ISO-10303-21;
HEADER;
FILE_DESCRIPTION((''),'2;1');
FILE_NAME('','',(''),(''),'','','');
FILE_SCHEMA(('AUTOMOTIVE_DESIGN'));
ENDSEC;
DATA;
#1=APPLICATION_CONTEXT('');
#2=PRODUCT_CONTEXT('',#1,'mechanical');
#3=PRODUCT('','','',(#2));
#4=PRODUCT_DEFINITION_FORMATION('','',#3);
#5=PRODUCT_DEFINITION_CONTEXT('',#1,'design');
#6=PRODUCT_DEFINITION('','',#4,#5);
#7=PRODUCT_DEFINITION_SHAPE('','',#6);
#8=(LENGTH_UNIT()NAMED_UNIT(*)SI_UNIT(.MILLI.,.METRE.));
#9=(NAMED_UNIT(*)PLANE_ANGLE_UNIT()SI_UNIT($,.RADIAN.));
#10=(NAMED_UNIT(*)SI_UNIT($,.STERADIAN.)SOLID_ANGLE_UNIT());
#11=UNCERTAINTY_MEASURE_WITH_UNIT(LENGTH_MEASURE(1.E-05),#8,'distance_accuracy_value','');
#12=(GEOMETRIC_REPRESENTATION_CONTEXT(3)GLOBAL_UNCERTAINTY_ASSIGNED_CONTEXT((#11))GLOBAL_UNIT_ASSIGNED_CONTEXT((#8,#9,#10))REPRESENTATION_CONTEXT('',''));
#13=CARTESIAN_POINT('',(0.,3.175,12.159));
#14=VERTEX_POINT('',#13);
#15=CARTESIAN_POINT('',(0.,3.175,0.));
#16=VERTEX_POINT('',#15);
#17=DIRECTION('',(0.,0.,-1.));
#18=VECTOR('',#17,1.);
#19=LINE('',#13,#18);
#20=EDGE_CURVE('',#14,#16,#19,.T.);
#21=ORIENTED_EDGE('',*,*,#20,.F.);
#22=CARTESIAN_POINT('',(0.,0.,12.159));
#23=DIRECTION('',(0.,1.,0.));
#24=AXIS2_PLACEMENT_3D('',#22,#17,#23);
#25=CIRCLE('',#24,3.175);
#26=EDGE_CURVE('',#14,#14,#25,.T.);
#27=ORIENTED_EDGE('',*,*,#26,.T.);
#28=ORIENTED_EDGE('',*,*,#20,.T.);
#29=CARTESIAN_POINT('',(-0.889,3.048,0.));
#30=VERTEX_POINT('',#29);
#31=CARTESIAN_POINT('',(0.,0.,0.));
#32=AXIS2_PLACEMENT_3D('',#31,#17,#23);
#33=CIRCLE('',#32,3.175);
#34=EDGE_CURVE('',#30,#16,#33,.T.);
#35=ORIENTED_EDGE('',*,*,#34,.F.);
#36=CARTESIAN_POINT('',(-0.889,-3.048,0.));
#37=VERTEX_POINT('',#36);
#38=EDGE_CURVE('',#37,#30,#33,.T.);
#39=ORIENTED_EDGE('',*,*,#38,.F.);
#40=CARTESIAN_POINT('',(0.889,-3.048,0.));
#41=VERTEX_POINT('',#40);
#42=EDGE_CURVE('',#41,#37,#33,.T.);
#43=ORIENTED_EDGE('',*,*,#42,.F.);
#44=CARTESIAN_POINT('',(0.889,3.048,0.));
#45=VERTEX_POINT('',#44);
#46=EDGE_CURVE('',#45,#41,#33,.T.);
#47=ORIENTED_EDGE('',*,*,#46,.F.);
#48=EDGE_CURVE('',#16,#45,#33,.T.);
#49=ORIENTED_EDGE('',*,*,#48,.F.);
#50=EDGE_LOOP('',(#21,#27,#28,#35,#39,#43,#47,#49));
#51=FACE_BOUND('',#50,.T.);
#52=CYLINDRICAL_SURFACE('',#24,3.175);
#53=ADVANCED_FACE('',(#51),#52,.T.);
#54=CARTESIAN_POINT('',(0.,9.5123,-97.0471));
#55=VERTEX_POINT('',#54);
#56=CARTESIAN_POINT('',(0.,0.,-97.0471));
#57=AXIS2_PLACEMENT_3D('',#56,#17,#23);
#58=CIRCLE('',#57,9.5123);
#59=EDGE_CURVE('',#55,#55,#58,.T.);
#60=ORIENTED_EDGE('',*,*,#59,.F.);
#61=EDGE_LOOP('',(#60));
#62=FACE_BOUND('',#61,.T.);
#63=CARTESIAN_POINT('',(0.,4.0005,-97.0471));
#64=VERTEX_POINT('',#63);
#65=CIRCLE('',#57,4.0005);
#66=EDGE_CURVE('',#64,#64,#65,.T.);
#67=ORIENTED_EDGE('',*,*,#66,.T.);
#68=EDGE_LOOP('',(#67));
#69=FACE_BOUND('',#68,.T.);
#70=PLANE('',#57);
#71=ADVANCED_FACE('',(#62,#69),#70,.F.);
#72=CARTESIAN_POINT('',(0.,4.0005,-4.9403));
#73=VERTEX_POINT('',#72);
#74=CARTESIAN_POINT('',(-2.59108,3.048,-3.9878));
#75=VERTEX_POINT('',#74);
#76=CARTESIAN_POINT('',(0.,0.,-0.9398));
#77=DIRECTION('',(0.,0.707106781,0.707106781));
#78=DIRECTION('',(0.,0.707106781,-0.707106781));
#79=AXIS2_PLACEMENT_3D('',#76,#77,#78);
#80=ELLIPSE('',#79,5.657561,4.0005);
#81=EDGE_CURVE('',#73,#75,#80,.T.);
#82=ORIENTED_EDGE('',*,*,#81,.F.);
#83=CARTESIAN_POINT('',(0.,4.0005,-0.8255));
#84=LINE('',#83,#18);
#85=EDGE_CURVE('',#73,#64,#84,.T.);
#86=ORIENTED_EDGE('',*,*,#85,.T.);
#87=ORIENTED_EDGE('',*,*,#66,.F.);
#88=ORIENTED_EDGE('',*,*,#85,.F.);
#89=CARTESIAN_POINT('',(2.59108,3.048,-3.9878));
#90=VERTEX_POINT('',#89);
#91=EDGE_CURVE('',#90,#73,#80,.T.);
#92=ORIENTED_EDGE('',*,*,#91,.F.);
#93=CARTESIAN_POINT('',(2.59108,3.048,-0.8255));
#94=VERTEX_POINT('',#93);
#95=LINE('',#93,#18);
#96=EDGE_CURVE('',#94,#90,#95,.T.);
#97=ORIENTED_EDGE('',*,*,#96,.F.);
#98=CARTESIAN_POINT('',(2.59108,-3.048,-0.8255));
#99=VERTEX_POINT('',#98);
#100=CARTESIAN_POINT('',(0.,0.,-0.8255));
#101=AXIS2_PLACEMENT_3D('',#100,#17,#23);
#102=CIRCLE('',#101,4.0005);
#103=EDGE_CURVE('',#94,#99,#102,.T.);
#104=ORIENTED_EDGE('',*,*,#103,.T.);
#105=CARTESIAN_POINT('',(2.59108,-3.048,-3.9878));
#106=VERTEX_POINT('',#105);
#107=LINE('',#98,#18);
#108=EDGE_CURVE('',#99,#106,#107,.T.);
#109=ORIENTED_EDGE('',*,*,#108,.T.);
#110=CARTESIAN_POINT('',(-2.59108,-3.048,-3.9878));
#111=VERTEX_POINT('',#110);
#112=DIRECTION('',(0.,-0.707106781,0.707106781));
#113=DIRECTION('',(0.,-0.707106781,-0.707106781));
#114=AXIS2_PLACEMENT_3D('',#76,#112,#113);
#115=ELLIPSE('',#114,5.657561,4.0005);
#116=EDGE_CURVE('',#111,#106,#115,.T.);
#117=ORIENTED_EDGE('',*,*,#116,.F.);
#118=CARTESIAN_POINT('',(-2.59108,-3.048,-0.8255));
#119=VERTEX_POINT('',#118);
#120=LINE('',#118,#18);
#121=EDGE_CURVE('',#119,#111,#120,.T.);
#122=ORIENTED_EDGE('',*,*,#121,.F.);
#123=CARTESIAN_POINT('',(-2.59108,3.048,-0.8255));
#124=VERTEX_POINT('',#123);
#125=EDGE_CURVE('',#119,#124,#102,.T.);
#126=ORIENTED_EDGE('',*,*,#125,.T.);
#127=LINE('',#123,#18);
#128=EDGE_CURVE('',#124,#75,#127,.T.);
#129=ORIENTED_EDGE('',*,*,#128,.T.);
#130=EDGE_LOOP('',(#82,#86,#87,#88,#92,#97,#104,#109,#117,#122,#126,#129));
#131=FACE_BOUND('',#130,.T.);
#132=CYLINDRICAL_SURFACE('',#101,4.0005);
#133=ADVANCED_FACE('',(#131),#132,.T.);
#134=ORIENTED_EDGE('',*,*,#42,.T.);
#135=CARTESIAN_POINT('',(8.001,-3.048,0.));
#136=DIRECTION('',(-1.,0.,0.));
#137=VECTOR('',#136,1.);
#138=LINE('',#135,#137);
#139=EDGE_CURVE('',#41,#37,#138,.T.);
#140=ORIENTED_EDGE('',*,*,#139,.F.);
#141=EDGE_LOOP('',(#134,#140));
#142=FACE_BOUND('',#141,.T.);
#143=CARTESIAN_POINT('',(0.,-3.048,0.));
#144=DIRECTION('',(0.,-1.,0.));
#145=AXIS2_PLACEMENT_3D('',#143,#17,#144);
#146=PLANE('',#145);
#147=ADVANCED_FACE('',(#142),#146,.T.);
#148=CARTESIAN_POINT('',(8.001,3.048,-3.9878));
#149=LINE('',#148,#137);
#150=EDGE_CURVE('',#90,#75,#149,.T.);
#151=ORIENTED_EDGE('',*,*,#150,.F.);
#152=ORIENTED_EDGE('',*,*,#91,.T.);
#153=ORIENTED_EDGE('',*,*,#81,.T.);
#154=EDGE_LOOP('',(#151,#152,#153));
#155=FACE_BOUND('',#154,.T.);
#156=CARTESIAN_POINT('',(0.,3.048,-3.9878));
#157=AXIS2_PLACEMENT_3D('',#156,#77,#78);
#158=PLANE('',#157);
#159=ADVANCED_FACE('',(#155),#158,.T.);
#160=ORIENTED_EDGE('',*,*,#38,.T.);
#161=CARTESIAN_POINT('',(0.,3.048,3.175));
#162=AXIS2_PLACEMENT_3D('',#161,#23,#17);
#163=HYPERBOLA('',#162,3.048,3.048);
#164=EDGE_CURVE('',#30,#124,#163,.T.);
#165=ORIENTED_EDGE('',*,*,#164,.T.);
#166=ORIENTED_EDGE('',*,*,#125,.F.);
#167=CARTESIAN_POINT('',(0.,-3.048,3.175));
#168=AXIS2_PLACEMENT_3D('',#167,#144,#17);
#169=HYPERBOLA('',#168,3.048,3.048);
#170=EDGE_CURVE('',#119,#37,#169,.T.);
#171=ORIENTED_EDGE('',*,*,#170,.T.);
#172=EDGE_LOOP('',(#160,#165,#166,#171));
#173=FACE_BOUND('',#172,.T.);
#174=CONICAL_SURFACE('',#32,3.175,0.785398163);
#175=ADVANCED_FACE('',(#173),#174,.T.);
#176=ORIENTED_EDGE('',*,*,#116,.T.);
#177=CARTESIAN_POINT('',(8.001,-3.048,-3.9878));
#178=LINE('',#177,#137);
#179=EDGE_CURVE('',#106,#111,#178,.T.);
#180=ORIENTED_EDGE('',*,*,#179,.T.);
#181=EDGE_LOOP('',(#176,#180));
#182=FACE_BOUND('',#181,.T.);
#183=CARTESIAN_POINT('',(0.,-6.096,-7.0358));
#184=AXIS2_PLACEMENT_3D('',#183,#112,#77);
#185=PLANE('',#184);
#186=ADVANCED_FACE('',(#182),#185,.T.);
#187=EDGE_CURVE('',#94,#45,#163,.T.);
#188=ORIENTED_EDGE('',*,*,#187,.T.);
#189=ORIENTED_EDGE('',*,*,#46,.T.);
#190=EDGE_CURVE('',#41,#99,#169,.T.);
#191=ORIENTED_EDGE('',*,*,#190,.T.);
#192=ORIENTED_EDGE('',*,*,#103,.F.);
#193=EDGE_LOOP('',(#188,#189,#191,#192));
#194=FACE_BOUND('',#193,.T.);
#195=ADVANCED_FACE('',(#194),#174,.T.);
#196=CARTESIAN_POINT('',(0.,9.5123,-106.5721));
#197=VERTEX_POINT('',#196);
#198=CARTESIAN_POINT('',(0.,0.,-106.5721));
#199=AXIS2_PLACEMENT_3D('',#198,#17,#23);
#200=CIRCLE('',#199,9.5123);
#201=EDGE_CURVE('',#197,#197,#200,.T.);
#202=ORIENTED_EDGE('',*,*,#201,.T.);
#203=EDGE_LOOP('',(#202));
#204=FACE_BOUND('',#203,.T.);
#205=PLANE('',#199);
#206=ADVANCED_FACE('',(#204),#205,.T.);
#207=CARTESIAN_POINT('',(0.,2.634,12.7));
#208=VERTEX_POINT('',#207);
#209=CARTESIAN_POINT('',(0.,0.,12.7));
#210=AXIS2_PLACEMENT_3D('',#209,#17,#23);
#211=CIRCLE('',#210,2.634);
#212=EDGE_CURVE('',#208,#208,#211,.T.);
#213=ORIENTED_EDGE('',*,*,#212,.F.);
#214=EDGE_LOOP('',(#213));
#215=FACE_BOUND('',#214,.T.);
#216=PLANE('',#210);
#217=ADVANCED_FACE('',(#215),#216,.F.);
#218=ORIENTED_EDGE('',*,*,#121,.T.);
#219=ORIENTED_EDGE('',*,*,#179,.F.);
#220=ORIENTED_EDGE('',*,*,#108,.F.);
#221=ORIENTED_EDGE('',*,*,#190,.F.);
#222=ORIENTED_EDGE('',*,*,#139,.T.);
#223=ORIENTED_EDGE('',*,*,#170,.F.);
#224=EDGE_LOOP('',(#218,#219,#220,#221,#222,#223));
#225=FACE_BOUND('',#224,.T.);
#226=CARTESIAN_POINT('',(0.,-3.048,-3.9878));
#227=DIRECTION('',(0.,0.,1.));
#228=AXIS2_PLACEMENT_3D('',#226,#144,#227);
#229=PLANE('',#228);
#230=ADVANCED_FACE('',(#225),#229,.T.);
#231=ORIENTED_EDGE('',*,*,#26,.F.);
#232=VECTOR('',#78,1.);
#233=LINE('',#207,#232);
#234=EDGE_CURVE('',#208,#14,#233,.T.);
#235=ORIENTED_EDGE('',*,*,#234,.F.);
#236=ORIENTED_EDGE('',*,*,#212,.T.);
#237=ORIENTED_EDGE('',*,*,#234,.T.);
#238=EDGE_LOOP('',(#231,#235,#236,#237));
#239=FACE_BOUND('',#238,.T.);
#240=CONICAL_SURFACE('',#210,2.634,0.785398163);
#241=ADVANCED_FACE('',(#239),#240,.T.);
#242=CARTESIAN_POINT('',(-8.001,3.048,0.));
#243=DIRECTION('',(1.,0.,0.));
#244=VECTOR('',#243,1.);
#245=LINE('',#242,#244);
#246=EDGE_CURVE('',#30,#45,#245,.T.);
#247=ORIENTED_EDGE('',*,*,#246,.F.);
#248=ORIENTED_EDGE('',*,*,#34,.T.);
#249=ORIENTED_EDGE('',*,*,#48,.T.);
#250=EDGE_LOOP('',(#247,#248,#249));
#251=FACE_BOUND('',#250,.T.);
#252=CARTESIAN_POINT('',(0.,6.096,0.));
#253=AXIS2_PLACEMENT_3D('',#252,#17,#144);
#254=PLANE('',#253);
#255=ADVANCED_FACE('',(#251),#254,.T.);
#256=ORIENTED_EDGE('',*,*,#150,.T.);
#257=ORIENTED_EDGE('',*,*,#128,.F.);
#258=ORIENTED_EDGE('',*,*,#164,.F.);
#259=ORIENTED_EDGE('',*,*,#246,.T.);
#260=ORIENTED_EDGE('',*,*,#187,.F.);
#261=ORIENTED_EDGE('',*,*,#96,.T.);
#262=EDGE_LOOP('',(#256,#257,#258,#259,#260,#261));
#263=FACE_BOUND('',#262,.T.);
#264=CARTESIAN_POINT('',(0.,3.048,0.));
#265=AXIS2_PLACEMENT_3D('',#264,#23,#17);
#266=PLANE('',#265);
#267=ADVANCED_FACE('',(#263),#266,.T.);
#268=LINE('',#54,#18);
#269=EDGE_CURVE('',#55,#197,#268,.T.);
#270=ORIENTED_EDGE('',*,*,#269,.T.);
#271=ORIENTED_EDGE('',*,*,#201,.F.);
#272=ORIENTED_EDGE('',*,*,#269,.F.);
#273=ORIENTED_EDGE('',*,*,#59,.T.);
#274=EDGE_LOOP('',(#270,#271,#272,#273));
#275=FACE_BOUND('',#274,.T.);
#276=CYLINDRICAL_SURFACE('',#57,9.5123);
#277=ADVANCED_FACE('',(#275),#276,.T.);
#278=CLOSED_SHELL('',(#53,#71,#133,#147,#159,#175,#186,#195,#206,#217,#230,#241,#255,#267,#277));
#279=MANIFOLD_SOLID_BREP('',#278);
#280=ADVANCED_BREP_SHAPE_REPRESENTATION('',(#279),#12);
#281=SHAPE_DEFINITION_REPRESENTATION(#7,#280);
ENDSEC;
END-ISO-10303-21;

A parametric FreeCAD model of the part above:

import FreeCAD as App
import Part
import Sketcher
Q = App.Units.Quantity


def add_polygon(sketch, points):
    """Adds a closed chain of lines whose ends are joined by coincident constraints."""
    first, n = sketch.GeometryCount, len(points)
    for a, b in zip(points, points[1:] + points[:1]):
        sketch.addGeometry(Part.LineSegment(App.Vector(*a, 0), App.Vector(*b, 0)), False)
    for i in range(n):
        sketch.addConstraint(Sketcher.Constraint("Coincident", first + i, 2, first + (i + 1) % n, 1))

doc = App.newDocument("Part")
body = doc.addObject("PartDesign::Body", "Body")

sketch1 = doc.addObject("Sketcher::SketchObject", "Sketch")
body.addObject(sketch1)
sketch1.AttachmentSupport = (doc.YZ_Plane, [""])
sketch1.MapMode = "FlatFace"
add_polygon(sketch1, [(0, 12.7), (0, -106.6), (9.5, -106.6), (9.5, -97), (4, -97), (4, -0.8), (3.2, 0), (3.2, 12.2), (2.6, 12.7)])
sketch1.addConstraint(Sketcher.Constraint("Vertical", 0))
sketch1.addConstraint(Sketcher.Constraint("Horizontal", 1))
sketch1.addConstraint(Sketcher.Constraint("Vertical", 2))
sketch1.addConstraint(Sketcher.Constraint("Horizontal", 3))
sketch1.addConstraint(Sketcher.Constraint("Vertical", 4))
sketch1.addConstraint(Sketcher.Constraint("Vertical", 6))
sketch1.addConstraint(Sketcher.Constraint("Horizontal", 8))
sketch1.addConstraint(Sketcher.Constraint("PointOnObject", 0, 2, -2))
sketch1.addConstraint(Sketcher.Constraint("PointOnObject", 5, 2, -1))
sketch1.addConstraint(Sketcher.Constraint("Parallel", 5, 7))
sketch1.addConstraint(Sketcher.Constraint("Angle", 5, Q("135 deg")))
sketch1.addConstraint(Sketcher.Constraint("DistanceY", -1, 1, 7, 2, Q("0.5 in")))
sketch1.addConstraint(Sketcher.Constraint("DistanceX", 3, 2, 3, 1, Q("0.217 in")))
sketch1.addConstraint(Sketcher.Constraint("DistanceY", 2, 1, 2, 2, Q("0.375 in")))
sketch1.addConstraint(Sketcher.Constraint("DistanceX", 1, 1, 1, 2, Q("0.3745 in")))
sketch1.addConstraint(Sketcher.Constraint("DistanceX", 8, 2, 8, 1, Q("0.1037 in")))
sketch1.addConstraint(Sketcher.Constraint("DistanceY", 6, 1, 6, 2, Q("0.4787 in")))
sketch1.addConstraint(Sketcher.Constraint("DistanceY", 0, 2, 0, 1, 119.272))
revolution = doc.addObject("PartDesign::Revolution", "Revolution")
body.addObject(revolution)
revolution.Profile = sketch1
revolution.ReferenceAxis = (sketch1, ["V_Axis"])
revolution.Angle = 360

sketch2 = doc.addObject("Sketcher::SketchObject", "Sketch001")
body.addObject(sketch2)
sketch2.AttachmentSupport = (doc.YZ_Plane, [""])
sketch2.MapMode = "FlatFace"
add_polygon(sketch2, [(6.1, -7), (6.1, 0), (3, 0), (3, -4)])
sketch2.addConstraint(Sketcher.Constraint("Vertical", 0))
sketch2.addConstraint(Sketcher.Constraint("Horizontal", 1))
sketch2.addConstraint(Sketcher.Constraint("Vertical", 2))
sketch2.addConstraint(Sketcher.Constraint("PointOnObject", 0, 2, -1))
sketch2.addConstraint(Sketcher.Constraint("Angle", 3, Q("-45 deg")))
sketch2.addConstraint(Sketcher.Constraint("DistanceX", 1, 2, 1, 1, Q("0.12 in")))
sketch2.addConstraint(Sketcher.Constraint("DistanceY", 0, 1, 0, 2, Q("0.277 in")))
sketch2.addConstraint(Sketcher.Constraint("DistanceX", -1, 1, 0, 2, Q("0.24 in")))
pocket1 = doc.addObject("PartDesign::Pocket", "Pocket")
body.addObject(pocket1)
pocket1.Profile = sketch2
pocket1.Length = Q("0.63 in")
pocket1.Midplane = True

sketch3 = doc.addObject("Sketcher::SketchObject", "Sketch002")
body.addObject(sketch3)
sketch3.AttachmentSupport = (doc.YZ_Plane, [""])
sketch3.MapMode = "FlatFace"
add_polygon(sketch3, [(-3, 0), (-6.1, 0), (-6.1, -7), (-3, -4)])
sketch3.addConstraint(Sketcher.Constraint("Horizontal", 0))
sketch3.addConstraint(Sketcher.Constraint("Vertical", 1))
sketch3.addConstraint(Sketcher.Constraint("Vertical", 3))
sketch3.addConstraint(Sketcher.Constraint("PointOnObject", 0, 2, -1))
sketch3.addConstraint(Sketcher.Constraint("Angle", 2, Q("45 deg")))
sketch3.addConstraint(Sketcher.Constraint("DistanceX", 0, 2, 0, 1, Q("0.12 in")))
sketch3.addConstraint(Sketcher.Constraint("DistanceY", 1, 2, 1, 1, Q("0.277 in")))
sketch3.addConstraint(Sketcher.Constraint("DistanceX", 0, 2, -1, 1, Q("0.24 in")))
pocket2 = doc.addObject("PartDesign::Pocket", "Pocket001")
body.addObject(pocket2)
pocket2.Profile = sketch3
pocket2.Length = Q("0.63 in")
pocket2.Midplane = True

doc.recompute()
